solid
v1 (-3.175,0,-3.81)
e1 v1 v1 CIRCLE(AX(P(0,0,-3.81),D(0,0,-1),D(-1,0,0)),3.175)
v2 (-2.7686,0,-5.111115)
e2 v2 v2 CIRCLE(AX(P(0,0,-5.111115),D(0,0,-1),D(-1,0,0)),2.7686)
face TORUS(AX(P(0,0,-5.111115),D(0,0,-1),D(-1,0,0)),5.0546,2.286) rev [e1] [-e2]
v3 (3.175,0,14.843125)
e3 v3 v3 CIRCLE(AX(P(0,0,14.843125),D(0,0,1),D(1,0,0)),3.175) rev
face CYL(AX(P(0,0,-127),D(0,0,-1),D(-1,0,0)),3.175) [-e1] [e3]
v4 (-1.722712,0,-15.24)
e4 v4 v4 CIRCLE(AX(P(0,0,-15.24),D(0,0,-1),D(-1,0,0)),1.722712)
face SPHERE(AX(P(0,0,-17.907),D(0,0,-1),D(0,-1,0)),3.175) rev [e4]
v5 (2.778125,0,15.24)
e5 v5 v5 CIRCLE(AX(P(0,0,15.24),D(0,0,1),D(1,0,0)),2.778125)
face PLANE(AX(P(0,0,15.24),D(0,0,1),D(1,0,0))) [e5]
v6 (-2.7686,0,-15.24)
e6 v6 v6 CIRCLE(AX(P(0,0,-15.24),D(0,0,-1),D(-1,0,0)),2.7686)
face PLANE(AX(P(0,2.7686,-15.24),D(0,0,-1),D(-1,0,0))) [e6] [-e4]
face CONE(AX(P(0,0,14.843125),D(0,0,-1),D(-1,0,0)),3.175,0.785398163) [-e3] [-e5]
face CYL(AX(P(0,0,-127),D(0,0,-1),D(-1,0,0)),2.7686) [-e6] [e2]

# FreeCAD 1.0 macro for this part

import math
import FreeCAD as App
import Part
import Sketcher
from FreeCAD import Vector
Q = App.Units.Quantity


def edges_at(feature, points):
    """Names of the edges that pass closest to the given points."""
    edges = feature.Shape.Edges
    near = lambda p: min(range(len(edges)), key=lambda i: edges[i].distToShape(Part.Vertex(*p))[0])
    return sorted({f"Edge{near(p) + 1}" for p in points})

doc = App.newDocument("Part")
body = doc.addObject("PartDesign::Body", "Body")

sketch1 = doc.addObject("Sketcher::SketchObject", "Sketch")
body.addObject(sketch1)
sketch1.AttachmentSupport = (doc.YZ_Plane, [""])
sketch1.MapMode = "FlatFace"
sketch1.addGeometry(Part.LineSegment(Vector(3.2, 15.2, 0), Vector(0, 15.2, 0)), False)
sketch1.addGeometry(Part.LineSegment(Vector(0, 15.2, 0), Vector(0, -15.2, 0)), False)
sketch1.addGeometry(Part.LineSegment(Vector(0, -15.2, 0), Vector(2.8, -15.2, 0)), False)
sketch1.addGeometry(Part.LineSegment(Vector(2.8, -15.2, 0), Vector(2.8, -5.1, 0)), False)
sketch1.addGeometry(Part.ArcOfCircle(Part.Circle(Vector(5.1, -5.1, 0), Vector(0, 0, 1), 2.3), math.radians(145), math.radians(180)), False)
sketch1.addGeometry(Part.LineSegment(Vector(3.2, -3.8, 0), Vector(3.2, 15.2, 0)), False)
sketch1.addConstraint(Sketcher.Constraint("Coincident", 0, 2, 1, 1))
sketch1.addConstraint(Sketcher.Constraint("Coincident", 1, 2, 2, 1))
sketch1.addConstraint(Sketcher.Constraint("Coincident", 2, 2, 3, 1))
sketch1.addConstraint(Sketcher.Constraint("Tangent", 3, 2, 4, 2))
sketch1.addConstraint(Sketcher.Constraint("Coincident", 4, 1, 5, 1))
sketch1.addConstraint(Sketcher.Constraint("Coincident", 5, 2, 0, 1))
sketch1.addConstraint(Sketcher.Constraint("Horizontal", 0))
sketch1.addConstraint(Sketcher.Constraint("Vertical", 1))
sketch1.addConstraint(Sketcher.Constraint("Horizontal", 2))
sketch1.addConstraint(Sketcher.Constraint("Vertical", 3))
sketch1.addConstraint(Sketcher.Constraint("Vertical", 5))
sketch1.addConstraint(Sketcher.Constraint("Symmetric", 0, 2, 1, 2, -1, 1))
sketch1.addConstraint(Sketcher.Constraint("Radius", 4, Q("0.09 in")))
sketch1.addConstraint(Sketcher.Constraint("DistanceY", 1, 2, 1, 1, Q("1.2 in")))
sketch1.addConstraint(Sketcher.Constraint("DistanceY", 5, 1, 5, 2, Q("0.75 in")))
sketch1.addConstraint(Sketcher.Constraint("DistanceX", 0, 2, 0, 1, Q("0.125 in")))
sketch1.addConstraint(Sketcher.Constraint("DistanceX", 2, 1, 2, 2, Q("0.109 in")))
revolution = doc.addObject("PartDesign::Revolution", "Revolution")
body.addObject(revolution)
revolution.Profile = sketch1
revolution.ReferenceAxis = (sketch1, ["V_Axis"])
revolution.Angle = 360

sketch2 = doc.addObject("Sketcher::SketchObject", "Sketch001")
body.addObject(sketch2)
sketch2.AttachmentSupport = (doc.YZ_Plane, [""])
sketch2.MapMode = "FlatFace"
sketch2.addGeometry(Part.ArcOfCircle(Part.Circle(Vector(0, -17.9, 0), Vector(0, 0, 1), 3.2), math.radians(57), math.radians(90)), False)
sketch2.addGeometry(Part.LineSegment(Vector(0, -14.7, 0), Vector(0, -15.2, 0)), False)
sketch2.addGeometry(Part.LineSegment(Vector(0, -15.2, 0), Vector(1.7, -15.2, 0)), False)
sketch2.addConstraint(Sketcher.Constraint("Coincident", 0, 2, 1, 1))
sketch2.addConstraint(Sketcher.Constraint("Coincident", 1, 2, 2, 1))
sketch2.addConstraint(Sketcher.Constraint("Coincident", 2, 2, 0, 1))
sketch2.addConstraint(Sketcher.Constraint("Vertical", 1))
sketch2.addConstraint(Sketcher.Constraint("Horizontal", 2))
sketch2.addConstraint(Sketcher.Constraint("PointOnObject", 0, 3, -2))
sketch2.addConstraint(Sketcher.Constraint("PointOnObject", 0, 2, -2))
sketch2.addConstraint(Sketcher.Constraint("Radius", 0, Q("0.125 in")))
sketch2.addConstraint(Sketcher.Constraint("DistanceY", 1, 2, 1, 1, Q("0.02 in")))
sketch2.addConstraint(Sketcher.Constraint("DistanceY", 1, 2, -1, 1, Q("0.6 in")))
groove = doc.addObject("PartDesign::Groove", "Groove")
body.addObject(groove)
groove.Profile = sketch2
groove.ReferenceAxis = (sketch2, ["V_Axis"])
groove.Angle = 360
doc.recompute()

chamfer = doc.addObject("PartDesign::Chamfer", "Chamfer")
body.addObject(chamfer)
chamfer.Base = (groove, edges_at(groove, [(3.175, 0, 15.24)]))
chamfer.Size = Q("0.015625 in")

doc.recompute()
